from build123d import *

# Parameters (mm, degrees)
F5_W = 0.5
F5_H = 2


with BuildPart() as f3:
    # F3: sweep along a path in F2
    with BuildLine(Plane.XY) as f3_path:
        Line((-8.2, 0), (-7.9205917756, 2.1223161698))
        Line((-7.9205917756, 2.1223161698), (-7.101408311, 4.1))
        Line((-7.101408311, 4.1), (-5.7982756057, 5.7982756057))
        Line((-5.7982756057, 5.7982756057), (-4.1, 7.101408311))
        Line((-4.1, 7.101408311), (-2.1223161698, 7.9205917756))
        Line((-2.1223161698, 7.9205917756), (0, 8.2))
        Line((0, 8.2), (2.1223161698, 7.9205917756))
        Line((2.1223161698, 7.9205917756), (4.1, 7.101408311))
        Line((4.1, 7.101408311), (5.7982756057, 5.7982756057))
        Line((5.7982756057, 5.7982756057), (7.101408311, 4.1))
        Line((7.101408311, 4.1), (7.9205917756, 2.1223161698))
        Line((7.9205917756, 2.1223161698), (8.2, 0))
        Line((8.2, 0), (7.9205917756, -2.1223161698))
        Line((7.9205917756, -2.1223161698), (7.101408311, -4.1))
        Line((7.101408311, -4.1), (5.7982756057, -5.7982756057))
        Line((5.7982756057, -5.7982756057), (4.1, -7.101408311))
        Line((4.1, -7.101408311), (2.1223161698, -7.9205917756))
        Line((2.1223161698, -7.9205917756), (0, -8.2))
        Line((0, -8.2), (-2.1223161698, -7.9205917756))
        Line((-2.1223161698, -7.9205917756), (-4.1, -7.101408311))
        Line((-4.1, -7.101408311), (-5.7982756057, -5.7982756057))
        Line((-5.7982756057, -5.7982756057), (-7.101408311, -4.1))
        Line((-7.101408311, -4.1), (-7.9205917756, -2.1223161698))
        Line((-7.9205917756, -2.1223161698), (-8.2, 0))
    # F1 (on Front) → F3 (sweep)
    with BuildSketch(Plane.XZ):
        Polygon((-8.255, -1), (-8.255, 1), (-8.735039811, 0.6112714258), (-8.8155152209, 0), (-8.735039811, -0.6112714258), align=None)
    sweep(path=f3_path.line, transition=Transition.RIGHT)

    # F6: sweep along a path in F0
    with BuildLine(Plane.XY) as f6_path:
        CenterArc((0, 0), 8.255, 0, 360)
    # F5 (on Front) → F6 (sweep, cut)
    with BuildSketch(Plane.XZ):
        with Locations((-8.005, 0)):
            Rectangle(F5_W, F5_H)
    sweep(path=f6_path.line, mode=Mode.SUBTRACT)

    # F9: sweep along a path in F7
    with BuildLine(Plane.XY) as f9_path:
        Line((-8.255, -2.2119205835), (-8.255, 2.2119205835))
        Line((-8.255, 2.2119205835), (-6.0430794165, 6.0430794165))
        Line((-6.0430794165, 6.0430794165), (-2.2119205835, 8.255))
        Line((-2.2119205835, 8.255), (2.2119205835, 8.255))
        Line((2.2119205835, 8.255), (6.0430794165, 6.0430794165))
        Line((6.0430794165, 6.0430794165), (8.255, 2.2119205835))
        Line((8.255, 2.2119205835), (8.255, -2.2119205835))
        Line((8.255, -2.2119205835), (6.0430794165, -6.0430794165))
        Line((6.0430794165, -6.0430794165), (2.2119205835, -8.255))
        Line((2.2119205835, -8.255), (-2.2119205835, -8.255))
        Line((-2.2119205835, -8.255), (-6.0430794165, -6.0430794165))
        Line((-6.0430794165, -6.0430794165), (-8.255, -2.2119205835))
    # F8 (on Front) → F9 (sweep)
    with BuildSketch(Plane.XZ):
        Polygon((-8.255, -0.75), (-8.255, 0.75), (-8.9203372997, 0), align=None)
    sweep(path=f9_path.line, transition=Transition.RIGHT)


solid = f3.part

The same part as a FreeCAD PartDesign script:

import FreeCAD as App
import Part
import Sketcher
Q = App.Units.Quantity

doc = App.newDocument("Part")
body = doc.addObject("PartDesign::Body", "Body")

# Sketch on XZ plane
sketch1 = body.newObject("Sketcher::SketchObject", "Sketch")
sketch1.AttachmentSupport = (doc.getObject("XZ_Plane"), [""])
sketch1.MapMode = "FlatFace"
sketch1.addGeometry([
    Part.LineSegment(App.Vector(-8.255, -1, 0), App.Vector(-8.255, 1, 0)),  # 0
    Part.LineSegment(App.Vector(-8.255, 1, 0), App.Vector(-8.73504, 0.611271, 0)),  # 1
    Part.LineSegment(App.Vector(-8.73504, 0.611271, 0), App.Vector(-8.815515, 0, 0)),  # 2
    Part.LineSegment(App.Vector(-8.815515, 0, 0), App.Vector(-8.73504, -0.611271, 0)),  # 3
    Part.LineSegment(App.Vector(-8.73504, -0.611271, 0), App.Vector(-8.255, -1, 0)),  # 4
], False)
sketch1.addConstraint([
    Sketcher.Constraint("Coincident", 0, 2, 1, 1),
    Sketcher.Constraint("Coincident", 1, 2, 2, 1),
    Sketcher.Constraint("Coincident", 2, 2, 3, 1),
    Sketcher.Constraint("Coincident", 3, 2, 4, 1),
    Sketcher.Constraint("Coincident", 4, 2, 0, 1),
    Sketcher.Constraint("Vertical", 0),
    Sketcher.Constraint("Symmetric", 1, 2, 3, 2, -1),
    Sketcher.Constraint("PointOnObject", 2, 2, -1),
    Sketcher.Constraint("Equal", 1, 4),
    Sketcher.Constraint("DistanceY", 0, 1, 0, 2, 2.0),
    Sketcher.Constraint("Angle", 1, Q("-141 deg")),
    Sketcher.Constraint("Angle", 2, Q("-97.5 deg")),
    Sketcher.Constraint("DistanceX", 0, 2, -1, 1, 8.255),
    Sketcher.Constraint("DistanceX", 1, 2, -1, 1, 8.73504),
])

# Sketch on XY plane
sketch2 = body.newObject("Sketcher::SketchObject", "Sketch001")
sketch2.AttachmentSupport = (doc.getObject("XY_Plane"), [""])
sketch2.MapMode = "FlatFace"
sketch2.addGeometry([
    Part.LineSegment(App.Vector(-8.2, 0, 0), App.Vector(-7.920592, 2.122316, 0)),  # 0
    Part.LineSegment(App.Vector(-7.920592, 2.122316, 0), App.Vector(-7.101408, 4.1, 0)),  # 1
    Part.LineSegment(App.Vector(-7.101408, 4.1, 0), App.Vector(-5.798276, 5.798276, 0)),  # 2
    Part.LineSegment(App.Vector(-5.798276, 5.798276, 0), App.Vector(-4.1, 7.101408, 0)),  # 3
    Part.LineSegment(App.Vector(-4.1, 7.101408, 0), App.Vector(-2.122316, 7.920592, 0)),  # 4
    Part.LineSegment(App.Vector(-2.122316, 7.920592, 0), App.Vector(0, 8.2, 0)),  # 5
    Part.LineSegment(App.Vector(0, 8.2, 0), App.Vector(2.122316, 7.920592, 0)),  # 6
    Part.LineSegment(App.Vector(2.122316, 7.920592, 0), App.Vector(4.1, 7.101408, 0)),  # 7
    Part.LineSegment(App.Vector(4.1, 7.101408, 0), App.Vector(5.798276, 5.798276, 0)),  # 8
    Part.LineSegment(App.Vector(5.798276, 5.798276, 0), App.Vector(7.101408, 4.1, 0)),  # 9
    Part.LineSegment(App.Vector(7.101408, 4.1, 0), App.Vector(7.920592, 2.122316, 0)),  # 10
    Part.LineSegment(App.Vector(7.920592, 2.122316, 0), App.Vector(8.2, 0, 0)),  # 11
    Part.LineSegment(App.Vector(8.2, 0, 0), App.Vector(7.920592, -2.122316, 0)),  # 12
    Part.LineSegment(App.Vector(7.920592, -2.122316, 0), App.Vector(7.101408, -4.1, 0)),  # 13
    Part.LineSegment(App.Vector(7.101408, -4.1, 0), App.Vector(5.798276, -5.798276, 0)),  # 14
    Part.LineSegment(App.Vector(5.798276, -5.798276, 0), App.Vector(4.1, -7.101408, 0)),  # 15
    Part.LineSegment(App.Vector(4.1, -7.101408, 0), App.Vector(2.122316, -7.920592, 0)),  # 16
    Part.LineSegment(App.Vector(2.122316, -7.920592, 0), App.Vector(0, -8.2, 0)),  # 17
    Part.LineSegment(App.Vector(0, -8.2, 0), App.Vector(-2.122316, -7.920592, 0)),  # 18
    Part.LineSegment(App.Vector(-2.122316, -7.920592, 0), App.Vector(-4.1, -7.101408, 0)),  # 19
    Part.LineSegment(App.Vector(-4.1, -7.101408, 0), App.Vector(-5.798276, -5.798276, 0)),  # 20
    Part.LineSegment(App.Vector(-5.798276, -5.798276, 0), App.Vector(-7.101408, -4.1, 0)),  # 21
    Part.LineSegment(App.Vector(-7.101408, -4.1, 0), App.Vector(-7.920592, -2.122316, 0)),  # 22
    Part.LineSegment(App.Vector(-7.920592, -2.122316, 0), App.Vector(-8.2, 0, 0)),  # 23
], False)
sketch2.addConstraint([
    Sketcher.Constraint("Coincident", 0, 2, 1, 1),
    Sketcher.Constraint("Coincident", 1, 2, 2, 1),
    Sketcher.Constraint("Coincident", 2, 2, 3, 1),
    Sketcher.Constraint("Coincident", 3, 2, 4, 1),
    Sketcher.Constraint("Coincident", 4, 2, 5, 1),
    Sketcher.Constraint("Coincident", 5, 2, 6, 1),
    Sketcher.Constraint("Coincident", 6, 2, 7, 1),
    Sketcher.Constraint("Coincident", 7, 2, 8, 1),
    Sketcher.Constraint("Coincident", 8, 2, 9, 1),
    Sketcher.Constraint("Coincident", 9, 2, 10, 1),
    Sketcher.Constraint("Coincident", 10, 2, 11, 1),
    Sketcher.Constraint("Coincident", 11, 2, 12, 1),
    Sketcher.Constraint("Coincident", 12, 2, 13, 1),
    Sketcher.Constraint("Coincident", 13, 2, 14, 1),
    Sketcher.Constraint("Coincident", 14, 2, 15, 1),
    Sketcher.Constraint("Coincident", 15, 2, 16, 1),
    Sketcher.Constraint("Coincident", 16, 2, 17, 1),
    Sketcher.Constraint("Coincident", 17, 2, 18, 1),
    Sketcher.Constraint("Coincident", 18, 2, 19, 1),
    Sketcher.Constraint("Coincident", 19, 2, 20, 1),
    Sketcher.Constraint("Coincident", 20, 2, 21, 1),
    Sketcher.Constraint("Coincident", 21, 2, 22, 1),
    Sketcher.Constraint("Coincident", 22, 2, 23, 1),
    Sketcher.Constraint("Coincident", 23, 2, 0, 1),
    Sketcher.Constraint("Symmetric", 0, 2, 12, 2, -1, 1),
    Sketcher.Constraint("Symmetric", 1, 2, 13, 2, -1, 1),
    Sketcher.Constraint("Symmetric", 2, 2, 14, 2, -1, 1),
    Sketcher.Constraint("Symmetric", 3, 2, 15, 2, -1, 1),
    Sketcher.Constraint("Symmetric", 4, 2, 16, 2, -1, 1),
    Sketcher.Constraint("Symmetric", 5, 2, 17, 2, -1, 1),
    Sketcher.Constraint("Symmetric", 6, 2, 18, 2, -1, 1),
    Sketcher.Constraint("Symmetric", 7, 2, 19, 2, -1, 1),
    Sketcher.Constraint("Symmetric", 8, 2, 20, 2, -1, 1),
    Sketcher.Constraint("Symmetric", 9, 2, 21, 2, -1, 1),
    Sketcher.Constraint("Symmetric", 10, 2, 22, 2, -1, 1),
    Sketcher.Constraint("Symmetric", 11, 2, 23, 2, -1, 1),
    Sketcher.Constraint("Symmetric", 4, 2, 6, 2, -2),
    Sketcher.Constraint("Symmetric", 3, 2, 7, 2, -2),
    Sketcher.Constraint("Symmetric", 2, 2, 8, 2, -2),
    Sketcher.Constraint("Symmetric", 1, 2, 9, 2, -2),
    Sketcher.Constraint("Symmetric", 0, 2, 10, 2, -2),
    Sketcher.Constraint("PointOnObject", 5, 2, -2),
    Sketcher.Constraint("PointOnObject", 11, 2, -1),
    Sketcher.Constraint("Perpendicular", 0, 6),
    Sketcher.Constraint("Perpendicular", 1, 7),
    Sketcher.Constraint("Perpendicular", 2, 8),
    Sketcher.Constraint("Equal", 0, 1),
    Sketcher.Constraint("Equal", 1, 2),
    Sketcher.Constraint("Equal", 2, 3),
    Sketcher.Constraint("Equal", 3, 4),
    Sketcher.Constraint("Equal", 4, 5),
    Sketcher.Constraint("Angle", 0, Q("82.5 deg")),
    Sketcher.Constraint("Angle", 1, Q("67.5 deg")),
    Sketcher.Constraint("Angle", 2, Q("52.5 deg")),
    Sketcher.Constraint("DistanceY", -1, 1, 1, 2, 4.1),
])
doc.recompute()

additivepipe = body.newObject("PartDesign::AdditivePipe", "AdditivePipe")
additivepipe.Profile = sketch1
additivepipe.Spine = (sketch2, ["Edge1", "Edge2", "Edge3", "Edge4", "Edge5", "Edge6", "Edge7", "Edge8", "Edge9", "Edge10", "Edge11", "Edge12", "Edge13", "Edge14", "Edge15", "Edge16", "Edge17", "Edge18", "Edge19", "Edge20", "Edge21", "Edge22", "Edge23", "Edge24"])
additivepipe.Transition = "Right corner"

# Sketch on XZ plane
sketch3 = body.newObject("Sketcher::SketchObject", "Sketch002")
sketch3.AttachmentSupport = (doc.getObject("XZ_Plane"), [""])
sketch3.MapMode = "FlatFace"
sketch3.addGeometry([
    Part.LineSegment(App.Vector(-8.255, 1, 0), App.Vector(-8.255, -1, 0)),
    Part.LineSegment(App.Vector(-8.255, -1, 0), App.Vector(-7.755, -1, 0)),
    Part.LineSegment(App.Vector(-7.755, -1, 0), App.Vector(-7.755, 1, 0)),
    Part.LineSegment(App.Vector(-7.755, 1, 0), App.Vector(-8.255, 1, 0)),
], False)
sketch3.addConstraint([
    Sketcher.Constraint("Coincident", 0, 2, 1, 1),
    Sketcher.Constraint("Coincident", 1, 2, 2, 1),
    Sketcher.Constraint("Coincident", 2, 2, 3, 1),
    Sketcher.Constraint("Coincident", 3, 2, 0, 1),
    Sketcher.Constraint("Vertical", 0),
    Sketcher.Constraint("Horizontal", 1),
    Sketcher.Constraint("Vertical", 2),
    Sketcher.Constraint("Horizontal", 3),
    Sketcher.Constraint("DistanceY", 0, 2, 0, 1, 2.0),
    Sketcher.Constraint("DistanceX", 1, 1, 1, 2, 0.5),
    Sketcher.Constraint("DistanceY", 0, 2, -1, 1, 1.0),
    Sketcher.Constraint("DistanceX", 0, 2, -1, 1, 8.255),
])

# Sketch on XY plane
sketch4 = body.newObject("Sketcher::SketchObject", "Sketch003")
sketch4.AttachmentSupport = (doc.getObject("XY_Plane"), [""])
sketch4.MapMode = "FlatFace"
sketch4.addGeometry(Part.Circle(App.Vector(0, 0, 0), App.Vector(0, 0, 1), 8.255), False)
sketch4.addConstraint([
    Sketcher.Constraint("Coincident", 0, 3, -1, 1),
    Sketcher.Constraint("Diameter", 0, 16.51),
])
doc.recompute()

subtractivepipe = body.newObject("PartDesign::SubtractivePipe", "SubtractivePipe")
subtractivepipe.Profile = sketch3
subtractivepipe.Spine = (sketch4, ["Edge1"])

# Sketch on XZ plane
sketch5 = body.newObject("Sketcher::SketchObject", "Sketch004")
sketch5.AttachmentSupport = (doc.getObject("XZ_Plane"), [""])
sketch5.MapMode = "FlatFace"
sketch5.addGeometry([
    Part.LineSegment(App.Vector(-8.255, -0.75, 0), App.Vector(-8.255, 0.75, 0)),
    Part.LineSegment(App.Vector(-8.255, 0.75, 0), App.Vector(-8.920337, 0, 0)),
    Part.LineSegment(App.Vector(-8.920337, 0, 0), App.Vector(-8.255, -0.75, 0)),
], False)
sketch5.addConstraint([
    Sketcher.Constraint("Coincident", 0, 2, 1, 1),
    Sketcher.Constraint("Coincident", 1, 2, 2, 1),
    Sketcher.Constraint("Coincident", 2, 2, 0, 1),
    Sketcher.Constraint("Vertical", 0),
    Sketcher.Constraint("PointOnObject", 1, 2, -1),
    Sketcher.Constraint("Equal", 1, 2),
    Sketcher.Constraint("DistanceY", 0, 1, 0, 2, 1.5),
    Sketcher.Constraint("DistanceX", 0, 2, -1, 1, 8.255),
    Sketcher.Constraint("Distance", 1, 1.002584),
])

# Sketch on XY plane
sketch6 = body.newObject("Sketcher::SketchObject", "Sketch005")
sketch6.AttachmentSupport = (doc.getObject("XY_Plane"), [""])
sketch6.MapMode = "FlatFace"
sketch6.addGeometry([
    Part.LineSegment(App.Vector(-8.255, -2.211921, 0), App.Vector(-8.255, 2.211921, 0)),  # 0
    Part.LineSegment(App.Vector(-8.255, 2.211921, 0), App.Vector(-6.043079, 6.043079, 0)),  # 1
    Part.LineSegment(App.Vector(-6.043079, 6.043079, 0), App.Vector(-2.211921, 8.255, 0)),  # 2
    Part.LineSegment(App.Vector(-2.211921, 8.255, 0), App.Vector(2.211921, 8.255, 0)),  # 3
    Part.LineSegment(App.Vector(2.211921, 8.255, 0), App.Vector(6.043079, 6.043079, 0)),  # 4
    Part.LineSegment(App.Vector(6.043079, 6.043079, 0), App.Vector(8.255, 2.211921, 0)),  # 5
    Part.LineSegment(App.Vector(8.255, 2.211921, 0), App.Vector(8.255, -2.211921, 0)),  # 6
    Part.LineSegment(App.Vector(8.255, -2.211921, 0), App.Vector(6.043079, -6.043079, 0)),  # 7
    Part.LineSegment(App.Vector(6.043079, -6.043079, 0), App.Vector(2.211921, -8.255, 0)),  # 8
    Part.LineSegment(App.Vector(2.211921, -8.255, 0), App.Vector(-2.211921, -8.255, 0)),  # 9
    Part.LineSegment(App.Vector(-2.211921, -8.255, 0), App.Vector(-6.043079, -6.043079, 0)),  # 10
    Part.LineSegment(App.Vector(-6.043079, -6.043079, 0), App.Vector(-8.255, -2.211921, 0)),  # 11
], False)
sketch6.addConstraint([
    Sketcher.Constraint("Coincident", 0, 2, 1, 1),
    Sketcher.Constraint("Coincident", 1, 2, 2, 1),
    Sketcher.Constraint("Coincident", 2, 2, 3, 1),
    Sketcher.Constraint("Coincident", 3, 2, 4, 1),
    Sketcher.Constraint("Coincident", 4, 2, 5, 1),
    Sketcher.Constraint("Coincident", 5, 2, 6, 1),
    Sketcher.Constraint("Coincident", 6, 2, 7, 1),
    Sketcher.Constraint("Coincident", 7, 2, 8, 1),
    Sketcher.Constraint("Coincident", 8, 2, 9, 1),
    Sketcher.Constraint("Coincident", 9, 2, 10, 1),
    Sketcher.Constraint("Coincident", 10, 2, 11, 1),
    Sketcher.Constraint("Coincident", 11, 2, 0, 1),
    Sketcher.Constraint("Vertical", 0),
    Sketcher.Constraint("Horizontal", 3),
    Sketcher.Constraint("Vertical", 6),
    Sketcher.Constraint("Horizontal", 9),
    Sketcher.Constraint("Symmetric", 0, 2, 6, 2, -1, 1),
    Sketcher.Constraint("Symmetric", 1, 2, 7, 2, -1, 1),
    Sketcher.Constraint("Symmetric", 2, 2, 8, 2, -1, 1),
    Sketcher.Constraint("Symmetric", 4, 2, 10, 2, -1, 1),
    Sketcher.Constraint("Symmetric", 1, 2, 4, 2, -2),
    Sketcher.Constraint("Perpendicular", 1, 4),
    Sketcher.Constraint("Perpendicular", 2, 5),
    Sketcher.Constraint("Perpendicular", 7, 10),
    Sketcher.Constraint("Perpendicular", 8, 11),
    Sketcher.Constraint("Horizontal", 0, 2, 5, 2),
    Sketcher.Constraint("Equal", 9, 0),
    Sketcher.Constraint("Equal", 1, 2),
    Sketcher.Constraint("Angle", 1, Q("60 deg")),
    Sketcher.Constraint("DistanceX", 0, 2, 5, 2, 16.51),
    Sketcher.Constraint("DistanceX", 1, 2, 3, 2, 8.255),
])
doc.recompute()

additivepipe2 = body.newObject("PartDesign::AdditivePipe", "AdditivePipe001")
additivepipe2.Profile = sketch5
additivepipe2.Spine = (sketch6, ["Edge1", "Edge2", "Edge3", "Edge4", "Edge5", "Edge6", "Edge7", "Edge8", "Edge9", "Edge10", "Edge11", "Edge12"])
additivepipe2.Transition = "Right corner"

doc.recompute()
